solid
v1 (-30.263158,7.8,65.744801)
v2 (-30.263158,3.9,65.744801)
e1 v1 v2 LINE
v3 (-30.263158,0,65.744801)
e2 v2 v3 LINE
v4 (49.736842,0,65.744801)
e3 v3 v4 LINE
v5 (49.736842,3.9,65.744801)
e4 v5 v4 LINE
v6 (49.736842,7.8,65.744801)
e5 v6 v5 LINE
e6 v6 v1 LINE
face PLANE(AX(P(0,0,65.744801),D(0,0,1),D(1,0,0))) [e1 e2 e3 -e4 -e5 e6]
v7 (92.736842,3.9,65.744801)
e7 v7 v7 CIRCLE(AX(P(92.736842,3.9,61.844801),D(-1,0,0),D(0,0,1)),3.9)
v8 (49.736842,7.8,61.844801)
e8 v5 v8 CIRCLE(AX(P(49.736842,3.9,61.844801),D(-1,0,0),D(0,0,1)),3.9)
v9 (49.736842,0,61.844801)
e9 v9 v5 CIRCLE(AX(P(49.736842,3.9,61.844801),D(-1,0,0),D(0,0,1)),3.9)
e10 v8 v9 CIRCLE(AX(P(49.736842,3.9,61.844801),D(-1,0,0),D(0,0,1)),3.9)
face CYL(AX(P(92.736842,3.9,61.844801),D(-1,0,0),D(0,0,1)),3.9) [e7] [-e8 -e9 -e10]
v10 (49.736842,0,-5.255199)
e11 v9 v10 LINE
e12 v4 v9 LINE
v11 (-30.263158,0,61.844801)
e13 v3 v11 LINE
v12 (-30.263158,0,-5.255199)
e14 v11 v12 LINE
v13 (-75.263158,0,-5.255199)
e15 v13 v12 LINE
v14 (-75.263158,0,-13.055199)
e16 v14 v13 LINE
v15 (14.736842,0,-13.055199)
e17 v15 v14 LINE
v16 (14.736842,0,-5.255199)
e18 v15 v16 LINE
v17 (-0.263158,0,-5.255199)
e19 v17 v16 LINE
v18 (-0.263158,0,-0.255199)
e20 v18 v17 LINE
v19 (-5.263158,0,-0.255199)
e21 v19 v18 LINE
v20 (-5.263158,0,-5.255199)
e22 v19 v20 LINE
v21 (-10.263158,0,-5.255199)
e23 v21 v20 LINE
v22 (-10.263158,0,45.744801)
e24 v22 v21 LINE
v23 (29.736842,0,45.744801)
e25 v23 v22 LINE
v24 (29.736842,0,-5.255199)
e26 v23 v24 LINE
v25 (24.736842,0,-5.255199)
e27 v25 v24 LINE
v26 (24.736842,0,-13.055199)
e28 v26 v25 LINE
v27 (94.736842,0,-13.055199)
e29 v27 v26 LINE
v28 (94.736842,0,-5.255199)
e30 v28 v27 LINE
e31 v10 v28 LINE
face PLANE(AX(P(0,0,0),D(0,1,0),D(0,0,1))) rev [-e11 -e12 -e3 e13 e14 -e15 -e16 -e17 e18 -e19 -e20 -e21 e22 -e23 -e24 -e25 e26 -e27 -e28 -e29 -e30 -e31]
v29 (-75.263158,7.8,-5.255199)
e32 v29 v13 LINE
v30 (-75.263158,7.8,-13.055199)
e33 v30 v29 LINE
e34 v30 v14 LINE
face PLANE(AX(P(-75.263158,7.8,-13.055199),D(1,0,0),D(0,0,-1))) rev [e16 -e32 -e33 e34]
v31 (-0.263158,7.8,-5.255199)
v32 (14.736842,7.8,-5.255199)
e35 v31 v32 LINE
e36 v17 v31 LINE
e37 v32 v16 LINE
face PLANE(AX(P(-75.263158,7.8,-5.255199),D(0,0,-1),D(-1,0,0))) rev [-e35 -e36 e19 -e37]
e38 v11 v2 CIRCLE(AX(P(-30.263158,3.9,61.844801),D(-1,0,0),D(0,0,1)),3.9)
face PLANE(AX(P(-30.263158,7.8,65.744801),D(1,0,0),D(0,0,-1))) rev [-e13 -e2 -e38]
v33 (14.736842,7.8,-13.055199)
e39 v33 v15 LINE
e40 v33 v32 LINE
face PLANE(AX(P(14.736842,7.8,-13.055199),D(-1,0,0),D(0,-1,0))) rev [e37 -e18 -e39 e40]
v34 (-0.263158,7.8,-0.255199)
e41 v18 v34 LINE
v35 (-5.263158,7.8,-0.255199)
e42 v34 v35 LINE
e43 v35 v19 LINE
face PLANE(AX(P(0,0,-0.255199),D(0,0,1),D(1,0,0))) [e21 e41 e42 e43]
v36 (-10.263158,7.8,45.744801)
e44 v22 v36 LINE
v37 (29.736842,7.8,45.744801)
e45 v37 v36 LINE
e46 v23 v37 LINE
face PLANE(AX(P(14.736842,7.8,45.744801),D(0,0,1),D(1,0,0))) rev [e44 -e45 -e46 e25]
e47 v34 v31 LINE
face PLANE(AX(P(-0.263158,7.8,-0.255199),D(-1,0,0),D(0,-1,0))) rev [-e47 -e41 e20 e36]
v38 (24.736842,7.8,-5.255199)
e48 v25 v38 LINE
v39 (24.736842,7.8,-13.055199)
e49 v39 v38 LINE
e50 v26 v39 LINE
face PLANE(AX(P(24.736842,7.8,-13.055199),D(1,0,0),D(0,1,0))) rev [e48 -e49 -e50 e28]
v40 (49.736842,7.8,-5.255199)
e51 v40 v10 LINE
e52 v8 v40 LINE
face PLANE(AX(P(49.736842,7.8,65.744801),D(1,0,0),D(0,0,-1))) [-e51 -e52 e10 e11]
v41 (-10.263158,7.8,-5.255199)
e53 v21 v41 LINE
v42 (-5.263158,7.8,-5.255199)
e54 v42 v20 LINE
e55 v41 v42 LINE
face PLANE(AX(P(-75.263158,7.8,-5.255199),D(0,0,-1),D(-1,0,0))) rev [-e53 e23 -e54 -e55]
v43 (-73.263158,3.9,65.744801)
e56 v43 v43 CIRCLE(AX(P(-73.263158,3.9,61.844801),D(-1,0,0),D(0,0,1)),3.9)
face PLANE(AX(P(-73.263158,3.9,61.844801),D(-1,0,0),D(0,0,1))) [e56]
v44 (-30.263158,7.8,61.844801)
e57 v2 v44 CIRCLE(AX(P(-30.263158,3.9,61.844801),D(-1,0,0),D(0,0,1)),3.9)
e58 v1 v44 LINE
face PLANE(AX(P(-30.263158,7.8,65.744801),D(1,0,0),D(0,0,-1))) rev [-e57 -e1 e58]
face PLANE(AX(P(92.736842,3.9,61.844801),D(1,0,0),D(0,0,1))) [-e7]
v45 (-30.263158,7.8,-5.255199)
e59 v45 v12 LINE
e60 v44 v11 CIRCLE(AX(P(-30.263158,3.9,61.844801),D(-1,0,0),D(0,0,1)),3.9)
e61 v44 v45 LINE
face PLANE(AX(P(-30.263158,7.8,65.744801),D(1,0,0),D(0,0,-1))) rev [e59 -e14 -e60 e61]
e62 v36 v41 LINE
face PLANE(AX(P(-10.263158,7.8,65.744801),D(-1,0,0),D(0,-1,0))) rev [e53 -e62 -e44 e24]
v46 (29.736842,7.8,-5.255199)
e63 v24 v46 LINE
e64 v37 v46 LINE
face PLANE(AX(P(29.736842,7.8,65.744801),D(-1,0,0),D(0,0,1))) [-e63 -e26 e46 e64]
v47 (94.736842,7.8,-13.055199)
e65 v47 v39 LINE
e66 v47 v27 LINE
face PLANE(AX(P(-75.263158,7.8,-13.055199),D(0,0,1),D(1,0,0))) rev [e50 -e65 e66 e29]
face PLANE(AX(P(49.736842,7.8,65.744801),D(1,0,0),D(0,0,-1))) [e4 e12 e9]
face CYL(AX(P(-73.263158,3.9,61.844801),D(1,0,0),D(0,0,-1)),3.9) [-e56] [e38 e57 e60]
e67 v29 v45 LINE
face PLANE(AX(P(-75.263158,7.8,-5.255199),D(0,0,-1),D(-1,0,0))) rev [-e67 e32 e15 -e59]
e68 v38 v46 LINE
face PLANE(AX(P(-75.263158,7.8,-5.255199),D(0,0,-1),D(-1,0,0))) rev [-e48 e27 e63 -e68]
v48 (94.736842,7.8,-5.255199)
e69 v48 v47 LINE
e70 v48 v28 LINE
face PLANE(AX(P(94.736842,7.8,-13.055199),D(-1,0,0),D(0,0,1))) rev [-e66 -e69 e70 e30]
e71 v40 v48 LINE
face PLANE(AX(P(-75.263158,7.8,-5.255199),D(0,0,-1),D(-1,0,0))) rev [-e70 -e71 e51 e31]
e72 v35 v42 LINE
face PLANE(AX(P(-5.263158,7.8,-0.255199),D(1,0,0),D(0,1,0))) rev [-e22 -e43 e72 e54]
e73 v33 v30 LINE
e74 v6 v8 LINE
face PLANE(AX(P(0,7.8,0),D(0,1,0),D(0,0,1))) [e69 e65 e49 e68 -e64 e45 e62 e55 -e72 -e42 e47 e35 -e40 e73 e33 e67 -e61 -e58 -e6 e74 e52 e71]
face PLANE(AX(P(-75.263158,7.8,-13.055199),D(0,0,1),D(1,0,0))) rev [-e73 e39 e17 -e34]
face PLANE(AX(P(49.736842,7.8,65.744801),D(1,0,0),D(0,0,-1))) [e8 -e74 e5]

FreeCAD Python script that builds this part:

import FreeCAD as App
import Part
import Sketcher
Q = App.Units.Quantity


def add_polygon(sketch, points):
    """Adds a closed chain of lines whose ends are joined by coincident constraints."""
    first, n = sketch.GeometryCount, len(points)
    for a, b in zip(points, points[1:] + points[:1]):
        sketch.addGeometry(Part.LineSegment(App.Vector(*a, 0), App.Vector(*b, 0)), False)
    for i in range(n):
        sketch.addConstraint(Sketcher.Constraint("Coincident", first + i, 2, first + (i + 1) % n, 1))

doc = App.newDocument("Part")
params = doc.addObject("Spreadsheet::Sheet", "Params")
for row, (alias, value) in enumerate([
    ("sketch1_width", "170 mm"),
    ("sketch1_height", "7.8 mm"),
    ("pad1_length", "7.8 mm"),
    ("sketch2_width", "20 mm"),
    ("sketch2_height", "7.8 mm"),
    ("pad2_length", "71 mm"),
    ("sketch3_diameter", "7.8 mm"),
    ("pad3_length", "43 mm"),
    ("sketch4_height", "20 mm"),
    ("sketch4_width", "7.8 mm"),
    ("pad4_length", "25 mm"),
    ("sketch5_width", "10 mm"),
    ("sketch5_height", "7.8 mm"),
    ("sketch6_width", "5 mm"),
    ("sketch6_height", "7.8 mm"),
    ("pad5_length", "5 mm"),
], start=1):
    params.set(f"A{row}", alias)
    params.set(f"B{row}", "=" + value)
    params.setAlias(f"B{row}", alias)

body = doc.addObject("PartDesign::Body", "Body")

# Sketch on XZ plane
sketch1 = body.newObject("Sketcher::SketchObject", "Sketch")
sketch1.AttachmentSupport = (doc.getObject("XZ_Plane"), [""])
sketch1.MapMode = "FlatFace"
add_polygon(sketch1, [(-75, -13), (-75, -5), (95, -5), (95, -13)])  # lines 0-3
sketch1.addConstraint([
    Sketcher.Constraint("Vertical", 0),
    Sketcher.Constraint("Horizontal", 1),
    Sketcher.Constraint("Vertical", 2),
    Sketcher.Constraint("Horizontal", 3),
    Sketcher.Constraint("DistanceX", 1, 1, 1, 2, Q("170 mm")),
    Sketcher.Constraint("DistanceY", 0, 1, 0, 2, Q("7.8 mm")),
    Sketcher.Constraint("DistanceY", 0, 2, -1, 1, Q("5.255199 mm")),
    Sketcher.Constraint("DistanceX", 0, 2, -1, 1, Q("75.263158 mm")),
])
sketch1.setExpression("Constraints[8]", "Params.sketch1_width")
sketch1.setExpression("Constraints[9]", "Params.sketch1_height")
pad1 = body.newObject("PartDesign::Pad", "Pad")
pad1.Profile = sketch1
pad1.setExpression("Length", "Params.pad1_length")
pad1.Reversed = True

# Sketch on XY plane
sketch2 = body.newObject("Sketcher::SketchObject", "Sketch001")
sketch2.AttachmentSupport = (doc.getObject("XY_Plane"), [""])
sketch2.MapMode = "FlatFace"
sketch2.AttachmentOffset = App.Placement(App.Vector(0, 0, -5.255199), App.Rotation())
add_polygon(sketch2, [(-30, 8), (-30, 0), (-10, 0), (-10, 8)])  # lines 0-3
sketch2.addConstraint([
    Sketcher.Constraint("Vertical", 0),
    Sketcher.Constraint("Horizontal", 1),
    Sketcher.Constraint("Vertical", 2),
    Sketcher.Constraint("Horizontal", 3),
    Sketcher.Constraint("PointOnObject", 0, 2, -1),
    Sketcher.Constraint("DistanceX", 1, 1, 1, 2, Q("20 mm")),
    Sketcher.Constraint("DistanceY", 0, 2, 0, 1, Q("7.8 mm")),
    Sketcher.Constraint("DistanceX", 0, 2, -1, 1, Q("30.263158 mm")),
])
sketch2.setExpression("Constraints[9]", "Params.sketch2_width")
sketch2.setExpression("Constraints[10]", "Params.sketch2_height")
pad2 = body.newObject("PartDesign::Pad", "Pad001")
pad2.Profile = sketch2
pad2.setExpression("Length", "Params.pad2_length")

# Sketch on YZ plane
sketch3 = body.newObject("Sketcher::SketchObject", "Sketch002")
sketch3.AttachmentSupport = (doc.getObject("YZ_Plane"), [""])
sketch3.MapMode = "FlatFace"
sketch3.AttachmentOffset = App.Placement(App.Vector(0, 0, -30.263158), App.Rotation())
sketch3.addGeometry(Part.Circle(App.Vector(3.9, 61.8, 0), App.Vector(0, 0, 1), 3.9), False)
sketch3.addConstraint([
    Sketcher.Constraint("Diameter", 0, Q("7.8 mm")),
    Sketcher.Constraint("DistanceX", -1, 1, 0, 3, Q("3.9 mm")),
    Sketcher.Constraint("DistanceY", -1, 1, 0, 3, Q("61.844801 mm")),
])
sketch3.setExpression("Constraints[0]", "Params.sketch3_diameter")
pad3 = body.newObject("PartDesign::Pad", "Pad002")
pad3.Profile = sketch3
pad3.setExpression("Length", "Params.pad3_length")
pad3.Reversed = True

# Sketch on YZ plane
sketch4 = body.newObject("Sketcher::SketchObject", "Sketch003")
sketch4.AttachmentSupport = (doc.getObject("YZ_Plane"), [""])
sketch4.MapMode = "FlatFace"
sketch4.AttachmentOffset = App.Placement(App.Vector(0, 0, -10.263158), App.Rotation())
add_polygon(sketch4, [(8, 66), (0, 66), (0, 46), (8, 46)])  # lines 0-3
sketch4.addConstraint([
    Sketcher.Constraint("Horizontal", 0),
    Sketcher.Constraint("Vertical", 1),
    Sketcher.Constraint("Horizontal", 2),
    Sketcher.Constraint("Vertical", 3),
    Sketcher.Constraint("PointOnObject", 0, 2, -2),
    Sketcher.Constraint("DistanceY", 1, 2, 1, 1, Q("20 mm")),
    Sketcher.Constraint("DistanceX", 0, 2, 0, 1, Q("7.8 mm")),
    Sketcher.Constraint("DistanceY", -1, 1, 0, 2, Q("65.744801 mm")),
])
sketch4.setExpression("Constraints[9]", "Params.sketch4_height")
sketch4.setExpression("Constraints[10]", "Params.sketch4_width")
pad4 = body.newObject("PartDesign::Pad", "Pad003")
pad4.Profile = sketch4
pad4.setExpression("Length", "Params.pad4_length")
doc.recompute()

datumplane = body.newObject("PartDesign::Plane", "DatumPlane")
datumplane.AttachmentSupport = (doc.getObject("YZ_Plane"), [""])
datumplane.MapMode = "FlatFace"
datumplane.AttachmentOffset = App.Placement(App.Vector(0, 0, 9.736842), App.Rotation())
mirrored = body.newObject("PartDesign::Mirrored", "Mirrored")
mirrored.Originals = [pad2, pad3, pad4]
mirrored.MirrorPlane = (datumplane, [""])
body.Tip = mirrored

# Sketch on XY plane
sketch5 = body.newObject("Sketcher::SketchObject", "Sketch004")
sketch5.AttachmentSupport = (doc.getObject("XY_Plane"), [""])
sketch5.MapMode = "FlatFace"
sketch5.AttachmentOffset = App.Placement(App.Vector(0, 0, -5.255199), App.Rotation())
add_polygon(sketch5, [(15, 8), (15, 0), (25, 0), (25, 8)])  # lines 0-3
sketch5.addConstraint([
    Sketcher.Constraint("Vertical", 0),
    Sketcher.Constraint("Horizontal", 1),
    Sketcher.Constraint("Vertical", 2),
    Sketcher.Constraint("Horizontal", 3),
    Sketcher.Constraint("PointOnObject", 0, 2, -1),
    Sketcher.Constraint("DistanceX", 1, 1, 1, 2, Q("10 mm")),
    Sketcher.Constraint("DistanceY", 0, 2, 0, 1, Q("7.8 mm")),
    Sketcher.Constraint("DistanceX", -1, 1, 0, 2, Q("14.736842 mm")),
])
sketch5.setExpression("Constraints[9]", "Params.sketch5_width")
sketch5.setExpression("Constraints[10]", "Params.sketch5_height")
pocket1 = body.newObject("PartDesign::Pocket", "Pocket")
pocket1.Profile = sketch5
pocket1.Type = "ThroughAll"

# Sketch on XY plane
sketch6 = body.newObject("Sketcher::SketchObject", "Sketch005")
sketch6.AttachmentSupport = (doc.getObject("XY_Plane"), [""])
sketch6.MapMode = "FlatFace"
sketch6.AttachmentOffset = App.Placement(App.Vector(0, 0, -5.255199), App.Rotation())
add_polygon(sketch6, [(-5, 8), (-5, 0), (0, 0), (0, 8)])  # lines 0-3
sketch6.addConstraint([
    Sketcher.Constraint("Vertical", 0),
    Sketcher.Constraint("Horizontal", 1),
    Sketcher.Constraint("Vertical", 2),
    Sketcher.Constraint("Horizontal", 3),
    Sketcher.Constraint("PointOnObject", 0, 2, -1),
    Sketcher.Constraint("DistanceX", 1, 1, 1, 2, Q("5 mm")),
    Sketcher.Constraint("DistanceY", 0, 2, 0, 1, Q("7.8 mm")),
    Sketcher.Constraint("DistanceX", 0, 2, -1, 1, Q("5.263158 mm")),
])
sketch6.setExpression("Constraints[9]", "Params.sketch6_width")
sketch6.setExpression("Constraints[10]", "Params.sketch6_height")
pad5 = body.newObject("PartDesign::Pad", "Pad004")
pad5.Profile = sketch6
pad5.setExpression("Length", "Params.pad5_length")

doc.recompute()
